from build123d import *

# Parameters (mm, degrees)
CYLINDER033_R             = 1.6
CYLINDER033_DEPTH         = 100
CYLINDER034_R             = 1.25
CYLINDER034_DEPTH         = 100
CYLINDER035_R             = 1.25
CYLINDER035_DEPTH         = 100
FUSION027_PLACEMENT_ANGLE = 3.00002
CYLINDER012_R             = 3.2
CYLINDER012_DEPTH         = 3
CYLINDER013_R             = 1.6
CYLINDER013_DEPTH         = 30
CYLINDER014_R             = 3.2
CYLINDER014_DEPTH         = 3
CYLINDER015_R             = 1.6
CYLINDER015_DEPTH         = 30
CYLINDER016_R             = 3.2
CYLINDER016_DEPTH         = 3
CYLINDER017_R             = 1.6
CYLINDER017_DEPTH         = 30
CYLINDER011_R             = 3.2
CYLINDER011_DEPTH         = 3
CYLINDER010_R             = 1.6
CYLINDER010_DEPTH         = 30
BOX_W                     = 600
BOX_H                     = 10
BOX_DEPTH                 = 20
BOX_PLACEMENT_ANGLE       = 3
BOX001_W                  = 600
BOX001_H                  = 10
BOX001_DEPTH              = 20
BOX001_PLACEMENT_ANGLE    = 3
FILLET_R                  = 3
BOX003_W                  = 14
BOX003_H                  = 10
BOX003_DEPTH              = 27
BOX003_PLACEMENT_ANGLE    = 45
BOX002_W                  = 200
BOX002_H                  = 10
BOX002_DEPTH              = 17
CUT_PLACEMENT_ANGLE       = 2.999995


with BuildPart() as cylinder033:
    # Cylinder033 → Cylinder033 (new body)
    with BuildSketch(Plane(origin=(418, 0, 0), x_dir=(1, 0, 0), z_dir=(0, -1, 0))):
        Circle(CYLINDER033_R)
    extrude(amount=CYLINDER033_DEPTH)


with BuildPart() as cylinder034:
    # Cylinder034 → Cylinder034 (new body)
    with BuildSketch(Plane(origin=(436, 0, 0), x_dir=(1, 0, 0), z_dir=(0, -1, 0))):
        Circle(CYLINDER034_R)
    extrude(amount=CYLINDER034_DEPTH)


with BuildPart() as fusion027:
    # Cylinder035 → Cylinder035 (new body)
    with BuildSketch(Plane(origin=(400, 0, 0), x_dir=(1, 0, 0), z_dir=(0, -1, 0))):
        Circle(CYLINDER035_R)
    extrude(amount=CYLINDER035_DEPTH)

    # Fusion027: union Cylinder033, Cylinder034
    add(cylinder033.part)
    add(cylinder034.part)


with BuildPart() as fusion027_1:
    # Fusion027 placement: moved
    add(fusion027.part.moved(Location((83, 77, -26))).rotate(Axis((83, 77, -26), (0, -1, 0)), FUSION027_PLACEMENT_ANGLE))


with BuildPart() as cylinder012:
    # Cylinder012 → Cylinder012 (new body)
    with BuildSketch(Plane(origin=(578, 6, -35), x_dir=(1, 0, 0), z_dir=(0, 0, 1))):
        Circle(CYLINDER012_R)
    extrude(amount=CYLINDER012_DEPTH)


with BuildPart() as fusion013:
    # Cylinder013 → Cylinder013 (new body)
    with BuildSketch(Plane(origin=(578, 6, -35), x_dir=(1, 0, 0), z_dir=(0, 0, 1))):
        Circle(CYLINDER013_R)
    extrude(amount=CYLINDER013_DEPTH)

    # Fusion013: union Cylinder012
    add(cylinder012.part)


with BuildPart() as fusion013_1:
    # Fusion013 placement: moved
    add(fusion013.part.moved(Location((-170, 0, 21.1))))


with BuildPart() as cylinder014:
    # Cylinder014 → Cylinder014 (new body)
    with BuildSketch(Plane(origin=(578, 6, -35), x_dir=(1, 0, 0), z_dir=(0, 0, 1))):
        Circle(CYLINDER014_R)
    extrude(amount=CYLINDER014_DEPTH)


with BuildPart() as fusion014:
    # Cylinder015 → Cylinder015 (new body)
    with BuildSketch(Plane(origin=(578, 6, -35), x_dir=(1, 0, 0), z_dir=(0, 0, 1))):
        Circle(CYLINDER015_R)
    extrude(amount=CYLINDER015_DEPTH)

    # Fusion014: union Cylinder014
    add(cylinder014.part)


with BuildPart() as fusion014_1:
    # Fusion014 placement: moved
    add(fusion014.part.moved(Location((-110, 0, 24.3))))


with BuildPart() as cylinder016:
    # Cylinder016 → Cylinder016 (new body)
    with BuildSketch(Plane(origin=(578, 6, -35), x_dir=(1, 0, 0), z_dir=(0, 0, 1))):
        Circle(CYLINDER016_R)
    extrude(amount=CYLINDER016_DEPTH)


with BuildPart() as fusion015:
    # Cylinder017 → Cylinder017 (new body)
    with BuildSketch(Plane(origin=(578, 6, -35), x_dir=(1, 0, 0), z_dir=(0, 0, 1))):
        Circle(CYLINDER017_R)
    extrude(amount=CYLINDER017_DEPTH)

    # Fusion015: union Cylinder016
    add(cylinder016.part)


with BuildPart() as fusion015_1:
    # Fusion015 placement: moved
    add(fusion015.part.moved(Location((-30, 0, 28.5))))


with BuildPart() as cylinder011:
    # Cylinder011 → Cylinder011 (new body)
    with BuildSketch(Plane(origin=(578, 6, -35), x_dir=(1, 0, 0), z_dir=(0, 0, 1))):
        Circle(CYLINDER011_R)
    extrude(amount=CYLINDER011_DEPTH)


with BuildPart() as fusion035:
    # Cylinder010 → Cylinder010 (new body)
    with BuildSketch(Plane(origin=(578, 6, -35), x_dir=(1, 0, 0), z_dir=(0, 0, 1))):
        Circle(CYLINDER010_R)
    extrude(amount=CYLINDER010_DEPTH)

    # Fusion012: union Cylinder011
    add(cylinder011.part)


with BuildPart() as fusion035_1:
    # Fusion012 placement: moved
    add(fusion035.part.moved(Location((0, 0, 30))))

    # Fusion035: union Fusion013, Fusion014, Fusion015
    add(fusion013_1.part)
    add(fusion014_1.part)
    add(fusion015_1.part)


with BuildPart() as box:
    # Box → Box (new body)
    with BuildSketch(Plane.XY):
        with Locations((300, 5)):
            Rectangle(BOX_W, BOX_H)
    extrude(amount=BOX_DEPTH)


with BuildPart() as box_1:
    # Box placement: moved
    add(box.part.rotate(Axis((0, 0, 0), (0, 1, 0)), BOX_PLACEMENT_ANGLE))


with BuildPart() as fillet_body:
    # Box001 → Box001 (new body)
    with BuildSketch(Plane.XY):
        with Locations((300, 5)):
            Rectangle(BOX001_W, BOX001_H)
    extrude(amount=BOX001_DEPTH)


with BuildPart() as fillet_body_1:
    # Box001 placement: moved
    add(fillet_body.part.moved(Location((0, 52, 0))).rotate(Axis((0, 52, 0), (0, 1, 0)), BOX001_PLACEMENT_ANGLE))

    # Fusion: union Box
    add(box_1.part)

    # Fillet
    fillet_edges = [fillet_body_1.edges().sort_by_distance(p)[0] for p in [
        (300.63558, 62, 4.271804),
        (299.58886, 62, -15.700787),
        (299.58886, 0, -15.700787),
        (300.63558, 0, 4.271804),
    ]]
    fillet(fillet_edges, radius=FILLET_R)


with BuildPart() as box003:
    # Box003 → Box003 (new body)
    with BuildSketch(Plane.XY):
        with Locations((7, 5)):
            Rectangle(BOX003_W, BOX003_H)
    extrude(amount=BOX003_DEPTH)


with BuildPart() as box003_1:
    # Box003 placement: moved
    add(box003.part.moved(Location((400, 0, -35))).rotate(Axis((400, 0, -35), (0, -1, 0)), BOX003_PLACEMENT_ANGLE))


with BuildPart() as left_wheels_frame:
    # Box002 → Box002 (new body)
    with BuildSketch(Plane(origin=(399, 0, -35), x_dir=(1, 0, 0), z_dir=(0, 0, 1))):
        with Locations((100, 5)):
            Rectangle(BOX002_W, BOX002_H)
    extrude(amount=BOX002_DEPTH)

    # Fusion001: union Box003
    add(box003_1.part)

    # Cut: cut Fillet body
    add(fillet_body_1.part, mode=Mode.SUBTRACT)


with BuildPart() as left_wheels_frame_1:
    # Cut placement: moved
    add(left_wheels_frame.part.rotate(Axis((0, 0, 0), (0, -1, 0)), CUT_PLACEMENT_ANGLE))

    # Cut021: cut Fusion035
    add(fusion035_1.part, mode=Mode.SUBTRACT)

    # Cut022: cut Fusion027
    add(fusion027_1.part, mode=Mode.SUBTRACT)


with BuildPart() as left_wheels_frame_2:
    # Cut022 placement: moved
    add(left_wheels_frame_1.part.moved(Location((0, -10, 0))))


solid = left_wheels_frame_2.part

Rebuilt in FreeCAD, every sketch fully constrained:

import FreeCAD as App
import Part
import Sketcher

V = App.Vector
Q = App.Units.Quantity


def edges_at(feature, points):
    """Names of the edges that pass closest to the given points."""
    edges = feature.Shape.Edges
    near = lambda p: min(range(len(edges)), key=lambda i: edges[i].distToShape(Part.Vertex(*p))[0])
    return sorted({f"Edge{near(p) + 1}" for p in points})


def add_polygon(sketch, points):
    """Adds a closed chain of lines whose ends are joined by coincident constraints."""
    first, n = sketch.GeometryCount, len(points)
    for a, b in zip(points, points[1:] + points[:1]):
        sketch.addGeometry(Part.LineSegment(App.Vector(*a, 0), App.Vector(*b, 0)), False)
    for i in range(n):
        sketch.addConstraint(Sketcher.Constraint("Coincident", first + i, 2, first + (i + 1) % n, 1))

doc = App.newDocument("Part")
params = doc.addObject("Spreadsheet::Sheet", "Params")
for row, (alias, value) in enumerate([
    ("sketch1_diameter", "3.2 mm"),
    ("pad1_length", "100 mm"),
    ("sketch2_diameter", "2.5 mm"),
    ("pad2_length", "100 mm"),
    ("sketch3_diameter", "2.5 mm"),
    ("pad3_length", "100 mm"),
    ("sketch4_diameter", "6.4 mm"),
    ("pad4_length", "3 mm"),
    ("sketch5_diameter", "3.2 mm"),
    ("pad5_length", "30 mm"),
    ("sketch6_diameter", "6.4 mm"),
    ("pad6_length", "3 mm"),
    ("sketch7_diameter", "3.2 mm"),
    ("pad7_length", "30 mm"),
    ("sketch8_diameter", "6.4 mm"),
    ("pad8_length", "3 mm"),
    ("sketch9_diameter", "3.2 mm"),
    ("pad9_length", "30 mm"),
    ("sketch10_diameter", "6.4 mm"),
    ("pad10_length", "3 mm"),
    ("sketch11_diameter", "3.2 mm"),
    ("pad11_length", "30 mm"),
    ("sketch12_width", "600 mm"),
    ("sketch12_height", "10 mm"),
    ("pad12_length", "20 mm"),
    ("sketch13_width", "600 mm"),
    ("sketch13_height", "10 mm"),
    ("pad13_length", "20 mm"),
    ("fillet_radius", "3 mm"),
    ("sketch14_width", "14 mm"),
    ("sketch14_height", "10 mm"),
    ("pad14_length", "27 mm"),
    ("sketch15_width", "200 mm"),
    ("sketch15_height", "10 mm"),
    ("pad15_length", "17 mm"),
], start=1):
    params.set(f"A{row}", alias)
    params.set(f"B{row}", "=" + value)
    params.setAlias(f"B{row}", alias)

body = doc.addObject("PartDesign::Body", "Body")

# Sketch on XZ plane
sketch1 = body.newObject("Sketcher::SketchObject", "Sketch")
sketch1.AttachmentSupport = (doc.getObject("XZ_Plane"), [""])
sketch1.MapMode = "FlatFace"
sketch1.addGeometry(Part.Circle(V(418, 0, 0), V(0, 0, 1), 1.6), False)
sketch1.addConstraint([
    Sketcher.Constraint("PointOnObject", 0, 3, -1),
    Sketcher.Constraint("Diameter", 0, Q("3.2 mm")),
    Sketcher.Constraint("DistanceX", -1, 1, 0, 3, Q("418 mm")),
])
sketch1.setExpression("Constraints[1]", "Params.sketch1_diameter")
pad1 = body.newObject("PartDesign::Pad", "Pad")
pad1.Profile = sketch1
pad1.setExpression("Length", "Params.pad1_length")
body2 = doc.addObject("PartDesign::Body", "Body001")

# Sketch on XZ plane
sketch2 = body2.newObject("Sketcher::SketchObject", "Sketch001")
sketch2.AttachmentSupport = (doc.getObject("XZ_Plane001"), [""])
sketch2.MapMode = "FlatFace"
sketch2.addGeometry(Part.Circle(V(436, 0, 0), V(0, 0, 1), 1.25), False)
sketch2.addConstraint([
    Sketcher.Constraint("PointOnObject", 0, 3, -1),
    Sketcher.Constraint("Diameter", 0, Q("2.5 mm")),
    Sketcher.Constraint("DistanceX", -1, 1, 0, 3, Q("436 mm")),
])
sketch2.setExpression("Constraints[1]", "Params.sketch2_diameter")
pad2 = body2.newObject("PartDesign::Pad", "Pad001")
pad2.Profile = sketch2
pad2.setExpression("Length", "Params.pad2_length")
body3 = doc.addObject("PartDesign::Body", "Body002")
body3.AllowCompound = True

# Sketch on XZ plane
sketch3 = body3.newObject("Sketcher::SketchObject", "Sketch002")
sketch3.AttachmentSupport = (doc.getObject("XZ_Plane002"), [""])
sketch3.MapMode = "FlatFace"
sketch3.addGeometry(Part.Circle(V(400, 0, 0), V(0, 0, 1), 1.25), False)
sketch3.addConstraint([
    Sketcher.Constraint("PointOnObject", 0, 3, -1),
    Sketcher.Constraint("Diameter", 0, Q("2.5 mm")),
    Sketcher.Constraint("DistanceX", -1, 1, 0, 3, Q("400 mm")),
])
sketch3.setExpression("Constraints[1]", "Params.sketch3_diameter")
pad3 = body3.newObject("PartDesign::Pad", "Pad002")
pad3.Profile = sketch3
pad3.setExpression("Length", "Params.pad3_length")
doc.recompute()

boolean = body3.newObject("PartDesign::Boolean", "Boolean")
boolean.Type = "Fuse"
boolean.addObjects([body])
doc.recompute()

boolean2 = body3.newObject("PartDesign::Boolean", "Boolean001")
boolean2.Type = "Fuse"
boolean2.addObjects([body2])
body4 = doc.addObject("PartDesign::Body", "Body003")
body4.AllowCompound = True
doc.recompute()

body3.Placement = App.Placement(V(83, 77, -26), App.Rotation(V(0, -1, 0), 3.00002))
boolean3 = body4.newObject("PartDesign::Boolean", "Boolean002")
boolean3.Type = "Fuse"
boolean3.addObjects([body3])
body5 = doc.addObject("PartDesign::Body", "Body004")

# Sketch on XY plane
sketch4 = body5.newObject("Sketcher::SketchObject", "Sketch003")
sketch4.AttachmentSupport = (doc.getObject("XY_Plane004"), [""])
sketch4.MapMode = "FlatFace"
sketch4.AttachmentOffset = App.Placement(V(0, 0, -35), App.Rotation())
sketch4.addGeometry(Part.Circle(V(578, 6, 0), V(0, 0, 1), 3.2), False)
sketch4.addConstraint([
    Sketcher.Constraint("Diameter", 0, Q("6.4 mm")),
    Sketcher.Constraint("DistanceX", -1, 1, 0, 3, Q("578 mm")),
    Sketcher.Constraint("DistanceY", -1, 1, 0, 3, Q("6 mm")),
])
sketch4.setExpression("Constraints[0]", "Params.sketch4_diameter")
pad4 = body5.newObject("PartDesign::Pad", "Pad003")
pad4.Profile = sketch4
pad4.setExpression("Length", "Params.pad4_length")
body6 = doc.addObject("PartDesign::Body", "Body005")

# Sketch on XY plane
sketch5 = body6.newObject("Sketcher::SketchObject", "Sketch004")
sketch5.AttachmentSupport = (doc.getObject("XY_Plane005"), [""])
sketch5.MapMode = "FlatFace"
sketch5.AttachmentOffset = App.Placement(V(0, 0, -35), App.Rotation())
sketch5.addGeometry(Part.Circle(V(578, 6, 0), V(0, 0, 1), 1.6), False)
sketch5.addConstraint([
    Sketcher.Constraint("Diameter", 0, Q("3.2 mm")),
    Sketcher.Constraint("DistanceX", -1, 1, 0, 3, Q("578 mm")),
    Sketcher.Constraint("DistanceY", -1, 1, 0, 3, Q("6 mm")),
])
sketch5.setExpression("Constraints[0]", "Params.sketch5_diameter")
pad5 = body6.newObject("PartDesign::Pad", "Pad004")
pad5.Profile = sketch5
pad5.setExpression("Length", "Params.pad5_length")
doc.recompute()

boolean4 = body6.newObject("PartDesign::Boolean", "Boolean003")
boolean4.Type = "Fuse"
boolean4.addObjects([body5])
body7 = doc.addObject("PartDesign::Body", "Body006")
doc.recompute()

body6.Placement = App.Placement(V(-170, 0, 21.1), App.Rotation(V(0, 0, 1), 0))
boolean5 = body7.newObject("PartDesign::Boolean", "Boolean004")
boolean5.Type = "Fuse"
boolean5.addObjects([body6])
body8 = doc.addObject("PartDesign::Body", "Body007")

# Sketch on XY plane
sketch6 = body8.newObject("Sketcher::SketchObject", "Sketch005")
sketch6.AttachmentSupport = (doc.getObject("XY_Plane007"), [""])
sketch6.MapMode = "FlatFace"
sketch6.AttachmentOffset = App.Placement(V(0, 0, -35), App.Rotation())
sketch6.addGeometry(Part.Circle(V(578, 6, 0), V(0, 0, 1), 3.2), False)
sketch6.addConstraint([
    Sketcher.Constraint("Diameter", 0, Q("6.4 mm")),
    Sketcher.Constraint("DistanceX", -1, 1, 0, 3, Q("578 mm")),
    Sketcher.Constraint("DistanceY", -1, 1, 0, 3, Q("6 mm")),
])
sketch6.setExpression("Constraints[0]", "Params.sketch6_diameter")
pad6 = body8.newObject("PartDesign::Pad", "Pad005")
pad6.Profile = sketch6
pad6.setExpression("Length", "Params.pad6_length")
body9 = doc.addObject("PartDesign::Body", "Body008")

# Sketch on XY plane
sketch7 = body9.newObject("Sketcher::SketchObject", "Sketch006")
sketch7.AttachmentSupport = (doc.getObject("XY_Plane008"), [""])
sketch7.MapMode = "FlatFace"
sketch7.AttachmentOffset = App.Placement(V(0, 0, -35), App.Rotation())
sketch7.addGeometry(Part.Circle(V(578, 6, 0), V(0, 0, 1), 1.6), False)
sketch7.addConstraint([
    Sketcher.Constraint("Diameter", 0, Q("3.2 mm")),
    Sketcher.Constraint("DistanceX", -1, 1, 0, 3, Q("578 mm")),
    Sketcher.Constraint("DistanceY", -1, 1, 0, 3, Q("6 mm")),
])
sketch7.setExpression("Constraints[0]", "Params.sketch7_diameter")
pad7 = body9.newObject("PartDesign::Pad", "Pad006")
pad7.Profile = sketch7
pad7.setExpression("Length", "Params.pad7_length")
doc.recompute()

boolean6 = body9.newObject("PartDesign::Boolean", "Boolean005")
boolean6.Type = "Fuse"
boolean6.addObjects([body8])
body10 = doc.addObject("PartDesign::Body", "Body009")
doc.recompute()

body9.Placement = App.Placement(V(-110, 0, 24.3), App.Rotation(V(0, 0, 1), 0))
boolean7 = body10.newObject("PartDesign::Boolean", "Boolean006")
boolean7.Type = "Fuse"
boolean7.addObjects([body9])
body11 = doc.addObject("PartDesign::Body", "Body010")

# Sketch on XY plane
sketch8 = body11.newObject("Sketcher::SketchObject", "Sketch007")
sketch8.AttachmentSupport = (doc.getObject("XY_Plane010"), [""])
sketch8.MapMode = "FlatFace"
sketch8.AttachmentOffset = App.Placement(V(0, 0, -35), App.Rotation())
sketch8.addGeometry(Part.Circle(V(578, 6, 0), V(0, 0, 1), 3.2), False)
sketch8.addConstraint([
    Sketcher.Constraint("Diameter", 0, Q("6.4 mm")),
    Sketcher.Constraint("DistanceX", -1, 1, 0, 3, Q("578 mm")),
    Sketcher.Constraint("DistanceY", -1, 1, 0, 3, Q("6 mm")),
])
sketch8.setExpression("Constraints[0]", "Params.sketch8_diameter")
pad8 = body11.newObject("PartDesign::Pad", "Pad007")
pad8.Profile = sketch8
pad8.setExpression("Length", "Params.pad8_length")
body12 = doc.addObject("PartDesign::Body", "Body011")

# Sketch on XY plane
sketch9 = body12.newObject("Sketcher::SketchObject", "Sketch008")
sketch9.AttachmentSupport = (doc.getObject("XY_Plane011"), [""])
sketch9.MapMode = "FlatFace"
sketch9.AttachmentOffset = App.Placement(V(0, 0, -35), App.Rotation())
sketch9.addGeometry(Part.Circle(V(578, 6, 0), V(0, 0, 1), 1.6), False)
sketch9.addConstraint([
    Sketcher.Constraint("Diameter", 0, Q("3.2 mm")),
    Sketcher.Constraint("DistanceX", -1, 1, 0, 3, Q("578 mm")),
    Sketcher.Constraint("DistanceY", -1, 1, 0, 3, Q("6 mm")),
])
sketch9.setExpression("Constraints[0]", "Params.sketch9_diameter")
pad9 = body12.newObject("PartDesign::Pad", "Pad008")
pad9.Profile = sketch9
pad9.setExpression("Length", "Params.pad9_length")
doc.recompute()

boolean8 = body12.newObject("PartDesign::Boolean", "Boolean007")
boolean8.Type = "Fuse"
boolean8.addObjects([body11])
body13 = doc.addObject("PartDesign::Body", "Body012")
doc.recompute()

body12.Placement = App.Placement(V(-30, 0, 28.5), App.Rotation(V(0, 0, 1), 0))
boolean9 = body13.newObject("PartDesign::Boolean", "Boolean008")
boolean9.Type = "Fuse"
boolean9.addObjects([body12])
body14 = doc.addObject("PartDesign::Body", "Body013")

# Sketch on XY plane
sketch10 = body14.newObject("Sketcher::SketchObject", "Sketch009")
sketch10.AttachmentSupport = (doc.getObject("XY_Plane013"), [""])
sketch10.MapMode = "FlatFace"
sketch10.AttachmentOffset = App.Placement(V(0, 0, -35), App.Rotation())
sketch10.addGeometry(Part.Circle(V(578, 6, 0), V(0, 0, 1), 3.2), False)
sketch10.addConstraint([
    Sketcher.Constraint("Diameter", 0, Q("6.4 mm")),
    Sketcher.Constraint("DistanceX", -1, 1, 0, 3, Q("578 mm")),
    Sketcher.Constraint("DistanceY", -1, 1, 0, 3, Q("6 mm")),
])
sketch10.setExpression("Constraints[0]", "Params.sketch10_diameter")
pad10 = body14.newObject("PartDesign::Pad", "Pad009")
pad10.Profile = sketch10
pad10.setExpression("Length", "Params.pad10_length")
body15 = doc.addObject("PartDesign::Body", "Body014")

# Sketch on XY plane
sketch11 = body15.newObject("Sketcher::SketchObject", "Sketch010")
sketch11.AttachmentSupport = (doc.getObject("XY_Plane014"), [""])
sketch11.MapMode = "FlatFace"
sketch11.AttachmentOffset = App.Placement(V(0, 0, -35), App.Rotation())
sketch11.addGeometry(Part.Circle(V(578, 6, 0), V(0, 0, 1), 1.6), False)
sketch11.addConstraint([
    Sketcher.Constraint("Diameter", 0, Q("3.2 mm")),
    Sketcher.Constraint("DistanceX", -1, 1, 0, 3, Q("578 mm")),
    Sketcher.Constraint("DistanceY", -1, 1, 0, 3, Q("6 mm")),
])
sketch11.setExpression("Constraints[0]", "Params.sketch11_diameter")
pad11 = body15.newObject("PartDesign::Pad", "Pad010")
pad11.Profile = sketch11
pad11.setExpression("Length", "Params.pad11_length")
doc.recompute()

boolean10 = body15.newObject("PartDesign::Boolean", "Boolean009")
boolean10.Type = "Fuse"
boolean10.addObjects([body14])
body16 = doc.addObject("PartDesign::Body", "Body015")
body16.AllowCompound = True
doc.recompute()

body15.Placement = App.Placement(V(0, 0, 30), App.Rotation(V(0, 0, 1), 0))
boolean11 = body16.newObject("PartDesign::Boolean", "Boolean010")
boolean11.Type = "Fuse"
boolean11.addObjects([body15])
doc.recompute()

boolean12 = body16.newObject("PartDesign::Boolean", "Boolean011")
boolean12.Type = "Fuse"
boolean12.addObjects([body7])
doc.recompute()

boolean13 = body16.newObject("PartDesign::Boolean", "Boolean012")
boolean13.Type = "Fuse"
boolean13.addObjects([body10])
doc.recompute()

boolean14 = body16.newObject("PartDesign::Boolean", "Boolean013")
boolean14.Type = "Fuse"
boolean14.addObjects([body13])
body17 = doc.addObject("PartDesign::Body", "Body016")

# Sketch on XY plane
sketch12 = body17.newObject("Sketcher::SketchObject", "Sketch011")
sketch12.AttachmentSupport = (doc.getObject("XY_Plane016"), [""])
sketch12.MapMode = "FlatFace"
add_polygon(sketch12, [(0, 10), (0, 0), (600, 0), (600, 10)])  # lines 0-3
sketch12.addConstraint([
    Sketcher.Constraint("Vertical", 0),
    Sketcher.Constraint("Horizontal", 1),
    Sketcher.Constraint("Vertical", 2),
    Sketcher.Constraint("Horizontal", 3),
    Sketcher.Constraint("Coincident", 0, 2, -1, 1),
    Sketcher.Constraint("DistanceX", 1, 1, 1, 2, Q("600 mm")),
    Sketcher.Constraint("DistanceY", 0, 2, 0, 1, Q("10 mm")),
])
sketch12.setExpression("Constraints[9]", "Params.sketch12_width")
sketch12.setExpression("Constraints[10]", "Params.sketch12_height")
pad12 = body17.newObject("PartDesign::Pad", "Pad011")
pad12.Profile = sketch12
pad12.setExpression("Length", "Params.pad12_length")
body18 = doc.addObject("PartDesign::Body", "Body017")
doc.recompute()

body17.Placement = App.Placement(V(0, 0, 0), App.Rotation(V(0, 1, 0), 3))
boolean15 = body18.newObject("PartDesign::Boolean", "Boolean014")
boolean15.Type = "Fuse"
boolean15.addObjects([body17])
body19 = doc.addObject("PartDesign::Body", "Body018")

# Sketch on XY plane
sketch13 = body19.newObject("Sketcher::SketchObject", "Sketch012")
sketch13.AttachmentSupport = (doc.getObject("XY_Plane018"), [""])
sketch13.MapMode = "FlatFace"
add_polygon(sketch13, [(0, 10), (0, 0), (600, 0), (600, 10)])  # lines 0-3
sketch13.addConstraint([
    Sketcher.Constraint("Vertical", 0),
    Sketcher.Constraint("Horizontal", 1),
    Sketcher.Constraint("Vertical", 2),
    Sketcher.Constraint("Horizontal", 3),
    Sketcher.Constraint("Coincident", 0, 2, -1, 1),
    Sketcher.Constraint("DistanceX", 1, 1, 1, 2, Q("600 mm")),
    Sketcher.Constraint("DistanceY", 0, 2, 0, 1, Q("10 mm")),
])
sketch13.setExpression("Constraints[9]", "Params.sketch13_width")
sketch13.setExpression("Constraints[10]", "Params.sketch13_height")
pad13 = body19.newObject("PartDesign::Pad", "Pad012")
pad13.Profile = sketch13
pad13.setExpression("Length", "Params.pad13_length")
body20 = doc.addObject("PartDesign::Body", "Body019")
body20.AllowCompound = True
doc.recompute()

body19.Placement = App.Placement(V(0, 52, 0), App.Rotation(V(0, 1, 0), 3))
boolean16 = body20.newObject("PartDesign::Boolean", "Boolean015")
boolean16.Type = "Fuse"
boolean16.addObjects([body19])
doc.recompute()

boolean17 = body20.newObject("PartDesign::Boolean", "Boolean016")
boolean17.Type = "Fuse"
boolean17.addObjects([body18])
doc.recompute()

fillet = body20.newObject("PartDesign::Fillet", "Fillet")
fillet.Base = (boolean17, edges_at(boolean17, [
    (300.636, 62, 4.272),
    (299.589, 62, -15.701),
    (299.589, 0, -15.701),
    (300.636, 0, 4.272),
]))
fillet.setExpression("Radius", "Params.fillet_radius")
body21 = doc.addObject("PartDesign::Body", "Body020")

# Sketch on XY plane
sketch14 = body21.newObject("Sketcher::SketchObject", "Sketch013")
sketch14.AttachmentSupport = (doc.getObject("XY_Plane020"), [""])
sketch14.MapMode = "FlatFace"
add_polygon(sketch14, [(0, 10), (0, 0), (14, 0), (14, 10)])  # lines 0-3
sketch14.addConstraint([
    Sketcher.Constraint("Vertical", 0),
    Sketcher.Constraint("Horizontal", 1),
    Sketcher.Constraint("Vertical", 2),
    Sketcher.Constraint("Horizontal", 3),
    Sketcher.Constraint("Coincident", 0, 2, -1, 1),
    Sketcher.Constraint("DistanceX", 1, 1, 1, 2, Q("14 mm")),
    Sketcher.Constraint("DistanceY", 0, 2, 0, 1, Q("10 mm")),
])
sketch14.setExpression("Constraints[9]", "Params.sketch14_width")
sketch14.setExpression("Constraints[10]", "Params.sketch14_height")
pad14 = body21.newObject("PartDesign::Pad", "Pad013")
pad14.Profile = sketch14
pad14.setExpression("Length", "Params.pad14_length")
body22 = doc.addObject("PartDesign::Body", "Body021")
doc.recompute()

body21.Placement = App.Placement(V(400, 0, -35), App.Rotation(V(0, -1, 0), 45))
boolean18 = body22.newObject("PartDesign::Boolean", "Boolean017")
boolean18.Type = "Fuse"
boolean18.addObjects([body21])
body23 = doc.addObject("PartDesign::Body", "Body022")

# Sketch on XY plane
sketch15 = body23.newObject("Sketcher::SketchObject", "Sketch014")
sketch15.AttachmentSupport = (doc.getObject("XY_Plane022"), [""])
sketch15.MapMode = "FlatFace"
sketch15.AttachmentOffset = App.Placement(V(0, 0, -35), App.Rotation())
add_polygon(sketch15, [(399, 10), (399, 0), (599, 0), (599, 10)])  # lines 0-3
sketch15.addConstraint([
    Sketcher.Constraint("Vertical", 0),
    Sketcher.Constraint("Horizontal", 1),
    Sketcher.Constraint("Vertical", 2),
    Sketcher.Constraint("Horizontal", 3),
    Sketcher.Constraint("PointOnObject", 0, 2, -1),
    Sketcher.Constraint("DistanceX", 1, 1, 1, 2, Q("200 mm")),
    Sketcher.Constraint("DistanceY", 0, 2, 0, 1, Q("10 mm")),
    Sketcher.Constraint("DistanceX", -1, 1, 0, 2, Q("399 mm")),
])
sketch15.setExpression("Constraints[9]", "Params.sketch15_width")
sketch15.setExpression("Constraints[10]", "Params.sketch15_height")
pad15 = body23.newObject("PartDesign::Pad", "Pad014")
pad15.Profile = sketch15
pad15.setExpression("Length", "Params.pad15_length")
doc.recompute()

boolean19 = body23.newObject("PartDesign::Boolean", "Boolean018")
boolean19.Type = "Fuse"
boolean19.addObjects([body22])
doc.recompute()

boolean20 = body23.newObject("PartDesign::Boolean", "Boolean019")
boolean20.Type = "Cut"
boolean20.addObjects([body20])
body24 = doc.addObject("PartDesign::Body", "Body023")
doc.recompute()

body23.Placement = App.Placement(V(0, 0, 0), App.Rotation(V(0, -1, 0), 2.999995))
boolean21 = body24.newObject("PartDesign::Boolean", "Boolean020")
boolean21.Type = "Fuse"
boolean21.addObjects([body23])
doc.recompute()

boolean22 = body24.newObject("PartDesign::Boolean", "Boolean021")
boolean22.Type = "Cut"
boolean22.addObjects([body16])
doc.recompute()

boolean23 = body24.newObject("PartDesign::Boolean", "Boolean022")
boolean23.Type = "Cut"
boolean23.addObjects([body4])
body25 = doc.addObject("PartDesign::Body", "Body024")
doc.recompute()

body24.Placement = App.Placement(V(0, -10, 0), App.Rotation(V(0, 0, 1), 0))
boolean24 = body25.newObject("PartDesign::Boolean", "Boolean023")
boolean24.Type = "Fuse"
boolean24.addObjects([body24])

doc.recompute()
